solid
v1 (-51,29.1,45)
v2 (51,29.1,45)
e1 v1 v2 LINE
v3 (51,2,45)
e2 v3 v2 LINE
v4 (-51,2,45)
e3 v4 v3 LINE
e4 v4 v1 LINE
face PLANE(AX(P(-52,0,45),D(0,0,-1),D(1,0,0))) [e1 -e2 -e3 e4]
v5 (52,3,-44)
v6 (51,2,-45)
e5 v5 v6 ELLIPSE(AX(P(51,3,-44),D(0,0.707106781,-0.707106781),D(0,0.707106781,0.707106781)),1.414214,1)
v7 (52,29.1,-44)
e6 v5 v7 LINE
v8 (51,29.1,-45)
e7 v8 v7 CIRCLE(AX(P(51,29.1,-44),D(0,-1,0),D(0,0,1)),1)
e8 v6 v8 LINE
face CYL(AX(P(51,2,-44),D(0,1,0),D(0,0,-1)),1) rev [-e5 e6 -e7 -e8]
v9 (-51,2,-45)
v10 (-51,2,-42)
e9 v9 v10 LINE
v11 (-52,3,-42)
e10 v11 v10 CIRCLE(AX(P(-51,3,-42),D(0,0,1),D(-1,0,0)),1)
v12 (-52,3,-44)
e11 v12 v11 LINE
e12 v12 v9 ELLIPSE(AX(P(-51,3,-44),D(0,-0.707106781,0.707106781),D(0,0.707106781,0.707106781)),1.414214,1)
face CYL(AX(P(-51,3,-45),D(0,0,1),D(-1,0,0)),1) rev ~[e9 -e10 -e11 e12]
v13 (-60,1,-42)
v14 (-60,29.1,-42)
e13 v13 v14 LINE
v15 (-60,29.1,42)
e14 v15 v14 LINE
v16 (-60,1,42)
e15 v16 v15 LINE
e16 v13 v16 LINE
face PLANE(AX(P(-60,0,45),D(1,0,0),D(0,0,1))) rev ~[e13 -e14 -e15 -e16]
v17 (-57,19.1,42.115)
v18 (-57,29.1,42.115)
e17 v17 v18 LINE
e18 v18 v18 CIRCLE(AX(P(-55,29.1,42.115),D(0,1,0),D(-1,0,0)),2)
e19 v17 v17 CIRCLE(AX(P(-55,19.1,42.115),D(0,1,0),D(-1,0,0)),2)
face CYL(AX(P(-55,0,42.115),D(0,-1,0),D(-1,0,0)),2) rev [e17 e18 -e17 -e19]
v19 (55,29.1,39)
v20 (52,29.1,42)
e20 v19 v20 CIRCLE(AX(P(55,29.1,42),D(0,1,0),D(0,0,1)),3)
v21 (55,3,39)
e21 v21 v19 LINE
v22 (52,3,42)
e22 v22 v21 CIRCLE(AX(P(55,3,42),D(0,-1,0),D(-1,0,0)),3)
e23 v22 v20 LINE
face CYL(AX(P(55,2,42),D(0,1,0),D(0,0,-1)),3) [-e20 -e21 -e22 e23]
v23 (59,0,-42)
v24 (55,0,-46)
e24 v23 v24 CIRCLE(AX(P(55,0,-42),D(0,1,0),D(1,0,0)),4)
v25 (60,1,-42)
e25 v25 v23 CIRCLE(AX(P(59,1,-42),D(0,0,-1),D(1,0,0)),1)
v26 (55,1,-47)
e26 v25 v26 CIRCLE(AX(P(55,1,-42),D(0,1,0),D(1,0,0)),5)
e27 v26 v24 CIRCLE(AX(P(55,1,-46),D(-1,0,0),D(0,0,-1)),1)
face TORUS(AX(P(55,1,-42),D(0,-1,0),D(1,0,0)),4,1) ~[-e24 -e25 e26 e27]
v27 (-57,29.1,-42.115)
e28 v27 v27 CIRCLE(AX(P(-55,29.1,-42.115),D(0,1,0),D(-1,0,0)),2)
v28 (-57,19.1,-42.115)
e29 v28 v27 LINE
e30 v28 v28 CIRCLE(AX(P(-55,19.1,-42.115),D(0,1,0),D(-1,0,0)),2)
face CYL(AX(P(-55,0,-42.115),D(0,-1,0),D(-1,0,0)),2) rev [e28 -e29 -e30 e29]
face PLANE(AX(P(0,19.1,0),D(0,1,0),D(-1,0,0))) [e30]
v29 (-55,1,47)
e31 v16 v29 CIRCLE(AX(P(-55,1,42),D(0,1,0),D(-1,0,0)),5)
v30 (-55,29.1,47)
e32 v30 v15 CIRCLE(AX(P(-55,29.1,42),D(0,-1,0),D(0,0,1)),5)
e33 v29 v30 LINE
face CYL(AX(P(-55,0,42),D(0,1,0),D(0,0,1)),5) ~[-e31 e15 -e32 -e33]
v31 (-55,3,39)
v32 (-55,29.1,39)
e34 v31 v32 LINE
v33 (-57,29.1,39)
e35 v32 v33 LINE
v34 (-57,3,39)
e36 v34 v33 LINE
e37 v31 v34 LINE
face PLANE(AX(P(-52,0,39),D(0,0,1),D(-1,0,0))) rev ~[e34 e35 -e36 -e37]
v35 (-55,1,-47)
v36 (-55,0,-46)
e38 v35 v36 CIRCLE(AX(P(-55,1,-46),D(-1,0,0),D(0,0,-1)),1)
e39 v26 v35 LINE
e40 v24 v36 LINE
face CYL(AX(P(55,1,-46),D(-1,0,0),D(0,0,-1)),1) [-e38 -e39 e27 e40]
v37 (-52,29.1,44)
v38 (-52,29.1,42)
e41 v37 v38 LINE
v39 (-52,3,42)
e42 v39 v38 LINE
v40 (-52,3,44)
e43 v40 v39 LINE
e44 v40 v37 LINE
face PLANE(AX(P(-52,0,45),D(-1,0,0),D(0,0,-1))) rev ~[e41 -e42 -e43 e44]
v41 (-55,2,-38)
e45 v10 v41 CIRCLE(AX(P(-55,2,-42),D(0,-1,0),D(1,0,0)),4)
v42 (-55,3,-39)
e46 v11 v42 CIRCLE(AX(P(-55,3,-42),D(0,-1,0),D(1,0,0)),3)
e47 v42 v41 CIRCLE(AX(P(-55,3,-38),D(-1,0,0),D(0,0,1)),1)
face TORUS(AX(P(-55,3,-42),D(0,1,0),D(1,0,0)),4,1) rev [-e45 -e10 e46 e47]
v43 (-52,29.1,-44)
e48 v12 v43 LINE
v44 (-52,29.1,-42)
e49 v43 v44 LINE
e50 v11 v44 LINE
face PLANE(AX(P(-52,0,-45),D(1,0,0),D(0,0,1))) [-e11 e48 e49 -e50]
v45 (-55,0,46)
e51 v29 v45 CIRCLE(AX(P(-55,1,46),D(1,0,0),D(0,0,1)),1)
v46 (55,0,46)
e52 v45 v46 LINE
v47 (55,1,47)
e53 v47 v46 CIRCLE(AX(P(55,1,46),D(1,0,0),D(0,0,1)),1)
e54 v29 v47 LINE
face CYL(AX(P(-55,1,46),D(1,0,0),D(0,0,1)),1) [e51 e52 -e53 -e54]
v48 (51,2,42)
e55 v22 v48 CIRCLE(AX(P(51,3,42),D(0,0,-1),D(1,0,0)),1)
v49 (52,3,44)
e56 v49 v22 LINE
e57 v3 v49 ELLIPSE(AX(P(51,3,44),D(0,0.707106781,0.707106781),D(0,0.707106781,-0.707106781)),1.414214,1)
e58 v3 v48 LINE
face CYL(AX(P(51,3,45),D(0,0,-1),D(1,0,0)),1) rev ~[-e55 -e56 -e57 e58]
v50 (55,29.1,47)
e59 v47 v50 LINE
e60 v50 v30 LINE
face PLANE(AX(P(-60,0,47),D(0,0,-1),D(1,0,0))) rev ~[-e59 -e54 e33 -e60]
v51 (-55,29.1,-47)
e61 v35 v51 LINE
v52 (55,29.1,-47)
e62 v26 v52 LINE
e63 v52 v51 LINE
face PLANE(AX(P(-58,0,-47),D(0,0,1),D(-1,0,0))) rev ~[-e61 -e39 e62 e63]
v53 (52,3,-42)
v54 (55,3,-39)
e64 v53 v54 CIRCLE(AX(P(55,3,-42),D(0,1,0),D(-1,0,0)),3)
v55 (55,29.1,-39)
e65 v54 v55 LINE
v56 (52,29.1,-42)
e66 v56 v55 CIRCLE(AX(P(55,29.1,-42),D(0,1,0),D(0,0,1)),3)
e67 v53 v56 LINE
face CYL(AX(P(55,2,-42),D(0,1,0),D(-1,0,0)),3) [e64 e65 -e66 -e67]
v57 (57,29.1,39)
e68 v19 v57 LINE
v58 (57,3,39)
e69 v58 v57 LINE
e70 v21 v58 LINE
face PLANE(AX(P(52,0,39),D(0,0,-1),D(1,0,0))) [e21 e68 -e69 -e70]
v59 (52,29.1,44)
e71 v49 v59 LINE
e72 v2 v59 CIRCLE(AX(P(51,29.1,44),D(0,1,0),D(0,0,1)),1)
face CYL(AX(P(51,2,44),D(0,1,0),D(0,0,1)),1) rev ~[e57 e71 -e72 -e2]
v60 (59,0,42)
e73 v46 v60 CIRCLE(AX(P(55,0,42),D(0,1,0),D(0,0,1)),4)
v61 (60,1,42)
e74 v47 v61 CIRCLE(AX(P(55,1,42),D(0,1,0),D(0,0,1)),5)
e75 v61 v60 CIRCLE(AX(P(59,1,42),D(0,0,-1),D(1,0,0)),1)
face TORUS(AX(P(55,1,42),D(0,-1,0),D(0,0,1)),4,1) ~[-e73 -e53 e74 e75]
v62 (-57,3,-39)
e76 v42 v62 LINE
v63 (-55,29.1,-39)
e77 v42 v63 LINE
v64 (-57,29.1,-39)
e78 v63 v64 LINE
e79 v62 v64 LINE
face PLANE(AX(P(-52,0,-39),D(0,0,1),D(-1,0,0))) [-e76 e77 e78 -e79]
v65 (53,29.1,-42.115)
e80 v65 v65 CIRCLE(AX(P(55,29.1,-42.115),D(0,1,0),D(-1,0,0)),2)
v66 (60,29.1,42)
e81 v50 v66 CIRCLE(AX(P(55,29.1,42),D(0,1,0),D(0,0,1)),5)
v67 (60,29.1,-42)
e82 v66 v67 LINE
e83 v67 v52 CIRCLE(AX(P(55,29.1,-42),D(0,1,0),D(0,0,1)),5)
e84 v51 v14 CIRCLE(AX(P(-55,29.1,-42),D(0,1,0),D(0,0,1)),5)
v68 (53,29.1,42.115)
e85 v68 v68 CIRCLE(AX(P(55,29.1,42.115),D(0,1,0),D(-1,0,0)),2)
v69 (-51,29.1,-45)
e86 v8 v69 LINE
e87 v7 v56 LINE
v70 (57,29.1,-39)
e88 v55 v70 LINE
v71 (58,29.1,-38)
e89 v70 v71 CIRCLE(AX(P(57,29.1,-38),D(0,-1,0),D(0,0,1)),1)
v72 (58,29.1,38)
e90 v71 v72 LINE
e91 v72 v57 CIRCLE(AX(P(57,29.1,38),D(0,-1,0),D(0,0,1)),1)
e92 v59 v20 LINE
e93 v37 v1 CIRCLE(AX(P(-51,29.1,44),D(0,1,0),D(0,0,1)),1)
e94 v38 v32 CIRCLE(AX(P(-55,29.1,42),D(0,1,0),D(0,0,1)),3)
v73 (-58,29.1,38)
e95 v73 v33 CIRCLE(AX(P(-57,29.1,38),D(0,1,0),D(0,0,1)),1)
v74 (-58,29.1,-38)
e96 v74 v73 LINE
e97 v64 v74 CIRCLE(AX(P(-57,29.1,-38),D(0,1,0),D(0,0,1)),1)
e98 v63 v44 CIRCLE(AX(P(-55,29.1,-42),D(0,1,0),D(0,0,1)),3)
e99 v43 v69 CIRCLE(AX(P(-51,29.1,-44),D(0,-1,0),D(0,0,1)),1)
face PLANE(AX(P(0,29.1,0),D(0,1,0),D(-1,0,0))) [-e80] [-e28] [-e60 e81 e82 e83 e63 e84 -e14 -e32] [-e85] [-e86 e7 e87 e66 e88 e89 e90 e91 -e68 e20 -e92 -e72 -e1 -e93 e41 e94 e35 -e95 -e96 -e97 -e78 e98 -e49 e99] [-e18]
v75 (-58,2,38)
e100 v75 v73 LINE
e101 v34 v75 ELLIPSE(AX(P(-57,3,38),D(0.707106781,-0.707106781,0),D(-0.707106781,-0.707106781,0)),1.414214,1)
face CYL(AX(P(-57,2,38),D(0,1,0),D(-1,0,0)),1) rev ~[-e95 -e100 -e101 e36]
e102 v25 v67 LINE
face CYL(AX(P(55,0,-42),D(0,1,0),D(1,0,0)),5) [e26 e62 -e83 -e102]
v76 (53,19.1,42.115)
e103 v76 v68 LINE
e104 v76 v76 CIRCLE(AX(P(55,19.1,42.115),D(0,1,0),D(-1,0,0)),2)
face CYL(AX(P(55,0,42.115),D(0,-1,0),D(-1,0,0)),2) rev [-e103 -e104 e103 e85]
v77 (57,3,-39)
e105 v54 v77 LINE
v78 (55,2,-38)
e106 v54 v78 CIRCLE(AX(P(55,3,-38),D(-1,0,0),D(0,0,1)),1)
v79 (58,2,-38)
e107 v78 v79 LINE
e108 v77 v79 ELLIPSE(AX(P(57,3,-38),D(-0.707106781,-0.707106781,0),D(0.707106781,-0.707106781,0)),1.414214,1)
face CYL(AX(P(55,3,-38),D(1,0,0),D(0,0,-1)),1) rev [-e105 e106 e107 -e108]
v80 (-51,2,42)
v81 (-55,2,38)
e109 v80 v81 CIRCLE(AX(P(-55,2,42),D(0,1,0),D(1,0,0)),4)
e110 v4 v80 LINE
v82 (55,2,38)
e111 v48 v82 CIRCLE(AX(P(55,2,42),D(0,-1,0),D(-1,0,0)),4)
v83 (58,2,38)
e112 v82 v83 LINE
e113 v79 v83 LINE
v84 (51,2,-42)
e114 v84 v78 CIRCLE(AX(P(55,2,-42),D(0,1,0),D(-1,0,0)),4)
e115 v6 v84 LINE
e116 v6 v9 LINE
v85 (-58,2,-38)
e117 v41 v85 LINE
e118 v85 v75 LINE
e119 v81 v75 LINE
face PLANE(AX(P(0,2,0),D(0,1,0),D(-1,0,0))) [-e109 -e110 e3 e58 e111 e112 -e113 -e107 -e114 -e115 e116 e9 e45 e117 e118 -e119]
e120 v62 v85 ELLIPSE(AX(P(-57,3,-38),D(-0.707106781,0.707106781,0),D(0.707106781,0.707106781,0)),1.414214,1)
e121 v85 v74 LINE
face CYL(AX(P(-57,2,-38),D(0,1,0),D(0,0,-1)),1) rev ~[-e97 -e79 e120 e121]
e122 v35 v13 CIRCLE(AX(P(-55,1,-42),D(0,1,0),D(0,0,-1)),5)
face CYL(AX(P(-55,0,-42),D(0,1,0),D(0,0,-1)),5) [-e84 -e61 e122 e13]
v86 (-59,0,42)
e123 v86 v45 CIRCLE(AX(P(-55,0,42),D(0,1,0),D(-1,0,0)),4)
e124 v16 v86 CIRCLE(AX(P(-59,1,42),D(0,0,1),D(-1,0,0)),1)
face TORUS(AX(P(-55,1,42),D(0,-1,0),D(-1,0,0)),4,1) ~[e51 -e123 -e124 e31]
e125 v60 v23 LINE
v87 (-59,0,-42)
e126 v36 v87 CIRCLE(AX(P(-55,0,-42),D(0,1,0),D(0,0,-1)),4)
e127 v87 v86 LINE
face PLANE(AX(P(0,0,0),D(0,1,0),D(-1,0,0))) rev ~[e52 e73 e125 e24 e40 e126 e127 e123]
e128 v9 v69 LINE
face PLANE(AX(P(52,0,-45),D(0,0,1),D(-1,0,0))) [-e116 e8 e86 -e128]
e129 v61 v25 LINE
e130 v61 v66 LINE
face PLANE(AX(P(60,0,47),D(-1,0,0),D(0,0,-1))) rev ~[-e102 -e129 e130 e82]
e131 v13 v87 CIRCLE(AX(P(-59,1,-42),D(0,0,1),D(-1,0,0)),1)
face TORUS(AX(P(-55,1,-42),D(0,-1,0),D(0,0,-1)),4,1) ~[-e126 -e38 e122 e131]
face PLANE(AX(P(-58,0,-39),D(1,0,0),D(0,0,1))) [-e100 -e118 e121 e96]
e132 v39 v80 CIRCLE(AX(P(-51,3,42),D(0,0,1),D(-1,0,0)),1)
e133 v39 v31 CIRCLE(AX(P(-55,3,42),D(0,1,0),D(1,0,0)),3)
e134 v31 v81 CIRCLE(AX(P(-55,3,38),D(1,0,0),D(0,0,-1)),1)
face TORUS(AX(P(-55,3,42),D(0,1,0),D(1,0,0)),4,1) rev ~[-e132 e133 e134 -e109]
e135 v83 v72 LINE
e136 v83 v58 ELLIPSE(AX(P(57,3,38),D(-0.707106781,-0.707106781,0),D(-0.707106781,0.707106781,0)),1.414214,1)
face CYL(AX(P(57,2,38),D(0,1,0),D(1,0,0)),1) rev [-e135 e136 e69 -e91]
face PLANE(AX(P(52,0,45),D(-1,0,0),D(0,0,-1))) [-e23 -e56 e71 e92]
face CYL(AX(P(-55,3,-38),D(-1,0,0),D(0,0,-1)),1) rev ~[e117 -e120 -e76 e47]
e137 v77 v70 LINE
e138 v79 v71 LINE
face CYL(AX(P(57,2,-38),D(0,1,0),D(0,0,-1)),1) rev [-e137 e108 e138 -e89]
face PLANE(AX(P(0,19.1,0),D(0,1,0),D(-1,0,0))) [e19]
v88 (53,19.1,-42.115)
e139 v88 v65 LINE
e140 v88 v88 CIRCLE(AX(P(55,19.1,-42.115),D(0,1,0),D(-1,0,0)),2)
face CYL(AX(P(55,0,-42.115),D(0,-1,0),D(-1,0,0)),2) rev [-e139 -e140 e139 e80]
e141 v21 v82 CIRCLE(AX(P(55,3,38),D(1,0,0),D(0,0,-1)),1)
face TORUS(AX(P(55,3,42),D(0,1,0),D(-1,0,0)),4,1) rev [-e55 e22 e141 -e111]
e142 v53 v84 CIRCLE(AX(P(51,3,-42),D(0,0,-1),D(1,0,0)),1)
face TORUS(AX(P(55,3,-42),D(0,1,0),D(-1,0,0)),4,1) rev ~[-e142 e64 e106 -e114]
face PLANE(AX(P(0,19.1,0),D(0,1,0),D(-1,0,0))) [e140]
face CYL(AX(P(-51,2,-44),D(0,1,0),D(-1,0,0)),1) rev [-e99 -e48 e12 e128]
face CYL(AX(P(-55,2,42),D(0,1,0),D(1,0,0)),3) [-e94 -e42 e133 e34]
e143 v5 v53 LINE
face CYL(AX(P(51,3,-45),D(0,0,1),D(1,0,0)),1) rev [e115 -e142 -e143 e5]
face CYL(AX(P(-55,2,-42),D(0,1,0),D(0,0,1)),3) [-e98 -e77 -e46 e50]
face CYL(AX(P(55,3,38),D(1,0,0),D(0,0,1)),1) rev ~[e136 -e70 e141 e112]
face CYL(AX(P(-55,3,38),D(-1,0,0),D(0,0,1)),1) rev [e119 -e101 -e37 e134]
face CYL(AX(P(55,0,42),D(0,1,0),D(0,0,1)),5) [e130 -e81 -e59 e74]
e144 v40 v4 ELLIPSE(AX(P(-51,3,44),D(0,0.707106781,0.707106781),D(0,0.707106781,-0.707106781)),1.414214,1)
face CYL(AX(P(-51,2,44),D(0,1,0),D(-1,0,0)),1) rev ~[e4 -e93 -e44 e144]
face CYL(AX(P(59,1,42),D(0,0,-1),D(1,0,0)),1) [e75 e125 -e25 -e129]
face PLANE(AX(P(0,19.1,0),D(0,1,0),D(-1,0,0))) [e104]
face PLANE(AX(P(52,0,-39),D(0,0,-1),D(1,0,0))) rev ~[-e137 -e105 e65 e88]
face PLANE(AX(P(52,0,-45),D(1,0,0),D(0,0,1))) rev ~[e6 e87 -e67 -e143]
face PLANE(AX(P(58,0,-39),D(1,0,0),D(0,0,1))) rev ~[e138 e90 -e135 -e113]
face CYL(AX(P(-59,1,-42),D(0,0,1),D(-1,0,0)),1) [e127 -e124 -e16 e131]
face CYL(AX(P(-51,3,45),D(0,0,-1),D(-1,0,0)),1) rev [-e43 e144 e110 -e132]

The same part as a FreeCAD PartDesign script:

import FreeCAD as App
import Part
import Sketcher
Q = App.Units.Quantity


def edges_at(feature, points):
    """Names of the edges that pass closest to the given points."""
    edges = feature.Shape.Edges
    near = lambda p: min(range(len(edges)), key=lambda i: edges[i].distToShape(Part.Vertex(*p))[0])
    return sorted({f"Edge{near(p) + 1}" for p in points})


def add_polygon(sketch, points):
    """Adds a closed chain of lines whose ends are joined by coincident constraints."""
    first, n = sketch.GeometryCount, len(points)
    for a, b in zip(points, points[1:] + points[:1]):
        sketch.addGeometry(Part.LineSegment(App.Vector(*a, 0), App.Vector(*b, 0)), False)
    for i in range(n):
        sketch.addConstraint(Sketcher.Constraint("Coincident", first + i, 2, first + (i + 1) % n, 1))

doc = App.newDocument("Part")
params = doc.addObject("Spreadsheet::Sheet", "Params")
for row, (alias, value) in enumerate([
    ("sketch1_width", "104 mm"),
    ("sketch1_width2", "6 mm"),
    ("sketch1_height", "78 mm"),
    ("pad1_length", "2 mm"),
    ("sketch2_diameter", "4 mm"),
    ("sketch2_width", "120 mm"),
    ("sketch2_height", "94 mm"),
    ("pad2_length", "29.1 mm"),
    ("fillet_radius", "5 mm"),
    ("fillet2_radius", "3 mm"),
    ("fillet3_radius", "1 mm"),
    ("sketch3_diameter", "4 mm"),
    ("pad3_length", "19.1 mm"),
    ("fillet4_radius", "1 mm"),
], start=1):
    params.set(f"A{row}", alias)
    params.set(f"B{row}", "=" + value)
    params.setAlias(f"B{row}", alias)

body = doc.addObject("PartDesign::Body", "Body")

# Sketch on XZ plane
sketch1 = body.newObject("Sketcher::SketchObject", "Sketch")
sketch1.AttachmentSupport = (doc.getObject("XZ_Plane"), [""])
sketch1.MapMode = "FlatFace"
add_polygon(sketch1, [(-52, 39), (-52, 45), (52, 45), (52, 39), (58, 39), (58, -39), (52, -39), (52, -45), (-52, -45), (-52, -39), (-58, -39), (-58, 39)])  # lines 0-11
sketch1.addConstraint(Sketcher.Constraint("Vertical", 0))
sketch1.addConstraint(Sketcher.Constraint("Horizontal", 1))
sketch1.addConstraint(Sketcher.Constraint("Vertical", 2))
sketch1.addConstraint(Sketcher.Constraint("Horizontal", 3))
sketch1.addConstraint(Sketcher.Constraint("Vertical", 4))
sketch1.addConstraint(Sketcher.Constraint("Horizontal", 5))
sketch1.addConstraint(Sketcher.Constraint("Vertical", 6))
sketch1.addConstraint(Sketcher.Constraint("Horizontal", 7))
sketch1.addConstraint(Sketcher.Constraint("Vertical", 8))
sketch1.addConstraint(Sketcher.Constraint("Horizontal", 9))
sketch1.addConstraint(Sketcher.Constraint("Vertical", 10))
sketch1.addConstraint(Sketcher.Constraint("Horizontal", 11))
sketch1.addConstraint(Sketcher.Constraint("Symmetric", 0, 2, 6, 2, -1, 1))
sketch1.addConstraint(Sketcher.Constraint("Symmetric", 2, 2, 8, 2, -1, 1))
sketch1.addConstraint(Sketcher.Constraint("Symmetric", 4, 2, 10, 2, -1, 1))
sketch1.addConstraint(Sketcher.Constraint("Symmetric", 5, 2, 8, 2, -2))
sketch1.addConstraint(Sketcher.Constraint("Equal", 11, 0))
sketch1.addConstraint(Sketcher.Constraint("DistanceX", 1, 1, 1, 2, Q("104 mm")))
sketch1.addConstraint(Sketcher.Constraint("DistanceX", 3, 1, 3, 2, Q("6 mm")))
sketch1.addConstraint(Sketcher.Constraint("DistanceY", 4, 2, 4, 1, Q("78 mm")))
sketch1.setExpression("Constraints[29]", "Params.sketch1_width")
sketch1.setExpression("Constraints[30]", "Params.sketch1_width2")
sketch1.setExpression("Constraints[31]", "Params.sketch1_height")
pad1 = body.newObject("PartDesign::Pad", "Pad")
pad1.Profile = sketch1
pad1.setExpression("Length", "Params.pad1_length")
pad1.Reversed = True

# Sketch on XZ plane
sketch2 = body.newObject("Sketcher::SketchObject", "Sketch001")
sketch2.AttachmentSupport = (doc.getObject("XZ_Plane"), [""])
sketch2.MapMode = "FlatFace"
add_polygon(sketch2, [(-60, 47), (60, 47), (60, -47), (-60, -47)])  # lines 0-3
add_polygon(sketch2, [(-58, 39), (-58, -39), (-52, -39), (-52, -45), (52, -45), (52, -39), (58, -39), (58, 39), (52, 39), (52, 45), (-52, 45), (-52, 39)])  # lines 4-15
sketch2.addGeometry(Part.Circle(App.Vector(-55, 42.115, 0), App.Vector(0, 0, 1), 2), False)  # 16
sketch2.addGeometry(Part.Circle(App.Vector(-55, -42.115, 0), App.Vector(0, 0, 1), 2), False)  # 17
sketch2.addGeometry(Part.Circle(App.Vector(55, 42.115, 0), App.Vector(0, 0, 1), 2), False)  # 18
sketch2.addGeometry(Part.Circle(App.Vector(55, -42.115, 0), App.Vector(0, 0, 1), 2), False)  # 19
sketch2.addConstraint(Sketcher.Constraint("Horizontal", 0))
sketch2.addConstraint(Sketcher.Constraint("Vertical", 1))
sketch2.addConstraint(Sketcher.Constraint("Horizontal", 2))
sketch2.addConstraint(Sketcher.Constraint("Vertical", 3))
sketch2.addConstraint(Sketcher.Constraint("Vertical", 4))
sketch2.addConstraint(Sketcher.Constraint("Horizontal", 5))
sketch2.addConstraint(Sketcher.Constraint("Vertical", 6))
sketch2.addConstraint(Sketcher.Constraint("Horizontal", 7))
sketch2.addConstraint(Sketcher.Constraint("Vertical", 8))
sketch2.addConstraint(Sketcher.Constraint("Horizontal", 9))
sketch2.addConstraint(Sketcher.Constraint("Vertical", 10))
sketch2.addConstraint(Sketcher.Constraint("Horizontal", 11))
sketch2.addConstraint(Sketcher.Constraint("Vertical", 12))
sketch2.addConstraint(Sketcher.Constraint("Horizontal", 13))
sketch2.addConstraint(Sketcher.Constraint("Vertical", 14))
sketch2.addConstraint(Sketcher.Constraint("Horizontal", 15))
sketch2.addConstraint(Sketcher.Constraint("Equal", 16, 17))
sketch2.addConstraint(Sketcher.Constraint("Equal", 17, 18))
sketch2.addConstraint(Sketcher.Constraint("Equal", 18, 19))
sketch2.addConstraint(Sketcher.Constraint("Symmetric", 17, 3, 18, 3, -1, 1))
sketch2.addConstraint(Sketcher.Constraint("Symmetric", 16, 3, 19, 3, -1, 1))
sketch2.addConstraint(Sketcher.Constraint("Symmetric", 0, 2, 2, 2, -1, 1))
sketch2.addConstraint(Sketcher.Constraint("Symmetric", 4, 2, 10, 2, -1, 1))
sketch2.addConstraint(Sketcher.Constraint("Symmetric", 6, 2, 12, 2, -1, 1))
sketch2.addConstraint(Sketcher.Constraint("Symmetric", 8, 2, 14, 2, -1, 1))
sketch2.addConstraint(Sketcher.Constraint("Symmetric", 16, 3, 18, 3, -2))
sketch2.addConstraint(Sketcher.Constraint("Symmetric", 5, 2, 8, 2, -2))
sketch2.addConstraint(Sketcher.Constraint("Equal", 15, 6))
sketch2.addConstraint(Sketcher.Constraint("Diameter", 16, Q("4 mm")))
sketch2.addConstraint(Sketcher.Constraint("DistanceX", 0, 1, 0, 2, Q("120 mm")))
sketch2.addConstraint(Sketcher.Constraint("DistanceY", 1, 2, 1, 1, Q("94 mm")))
sketch2.addConstraint(Sketcher.Constraint("DistanceX", 16, 3, -1, 1, Q("55 mm")))
sketch2.addConstraint(Sketcher.Constraint("DistanceX", 2, 2, 4, 2, Q("2 mm")))
sketch2.addConstraint(Sketcher.Constraint("DistanceY", 2, 2, 4, 2, Q("8 mm")))
sketch2.addConstraint(Sketcher.Constraint("DistanceX", 2, 2, 5, 2, Q("8 mm")))
sketch2.addConstraint(Sketcher.Constraint("DistanceY", -1, 1, 16, 3, Q("42.115 mm")))
sketch2.setExpression("Constraints[44]", "Params.sketch2_diameter")
sketch2.setExpression("Constraints[45]", "Params.sketch2_width")
sketch2.setExpression("Constraints[46]", "Params.sketch2_height")
pad2 = body.newObject("PartDesign::Pad", "Pad001")
pad2.Profile = sketch2
pad2.setExpression("Length", "Params.pad2_length")
pad2.Reversed = True
doc.recompute()

fillet = body.newObject("PartDesign::Fillet", "Fillet")
fillet.Base = (pad2, edges_at(pad2, [
    (-60, 14.55, 47),
    (-60, 14.55, -47),
    (60, 14.55, -47),
    (60, 14.55, 47),
]))
fillet.setExpression("Radius", "Params.fillet_radius")
doc.recompute()

fillet2 = body.newObject("PartDesign::Fillet", "Fillet001")
fillet2.Base = (fillet, edges_at(fillet, [
    (-52, 15.55, -39),
    (-52, 15.55, 39),
    (52, 15.55, -39),
    (52, 15.55, 39),
]))
fillet2.setExpression("Radius", "Params.fillet2_radius")
doc.recompute()

fillet3 = body.newObject("PartDesign::Fillet", "Fillet002")
fillet3.Base = (fillet2, edges_at(fillet2, [
    (-58, 15.55, -39),
    (-52, 15.55, -45),
    (-52, 2, -43.5),
    (-56.5, 2, -39),
    (56.5, 2, -39),
    (52, 2, -43.5),
    (52, 15.55, -45),
    (58, 15.55, -39),
    (58, 15.55, 39),
    (52, 15.55, 45),
    (52, 2, 43.5),
    (56.5, 2, 39),
    (-56.5, 2, 39),
    (-52, 2, 43.5),
    (-58, 15.55, 39),
    (-52, 15.55, 45),
]))
fillet3.setExpression("Radius", "Params.fillet3_radius")

# Sketch on XZ plane
sketch3 = body.newObject("Sketcher::SketchObject", "Sketch002")
sketch3.AttachmentSupport = (doc.getObject("XZ_Plane"), [""])
sketch3.MapMode = "FlatFace"
sketch3.addGeometry(Part.Circle(App.Vector(55, -42.115, 0), App.Vector(0, 0, 1), 2), False)
sketch3.addGeometry(Part.Circle(App.Vector(-55, -42.115, 0), App.Vector(0, 0, 1), 2), False)
sketch3.addGeometry(Part.Circle(App.Vector(55, 42.115, 0), App.Vector(0, 0, 1), 2), False)
sketch3.addGeometry(Part.Circle(App.Vector(-55, 42.115, 0), App.Vector(0, 0, 1), 2), False)
sketch3.addConstraint(Sketcher.Constraint("Equal", 0, 1))
sketch3.addConstraint(Sketcher.Constraint("Equal", 1, 2))
sketch3.addConstraint(Sketcher.Constraint("Equal", 2, 3))
sketch3.addConstraint(Sketcher.Constraint("Symmetric", 1, 3, 2, 3, -1, 1))
sketch3.addConstraint(Sketcher.Constraint("Symmetric", 0, 3, 3, 3, -1, 1))
sketch3.addConstraint(Sketcher.Constraint("Symmetric", 0, 3, 1, 3, -2))
sketch3.addConstraint(Sketcher.Constraint("Diameter", 0, Q("4 mm")))
sketch3.addConstraint(Sketcher.Constraint("DistanceX", -1, 1, 0, 3, Q("55 mm")))
sketch3.addConstraint(Sketcher.Constraint("DistanceY", 0, 3, -1, 1, Q("42.115 mm")))
sketch3.setExpression("Constraints[6]", "Params.sketch3_diameter")
pad3 = body.newObject("PartDesign::Pad", "Pad002")
pad3.Profile = sketch3
pad3.setExpression("Length", "Params.pad3_length")
pad3.Reversed = True
doc.recompute()

fillet4 = body.newObject("PartDesign::Fillet", "Fillet003")
fillet4.Base = (pad3, edges_at(pad3, [
    (0, 0, 47),
    (60, 0, 0),
    (0, 0, -47),
    (-60, 0, 0),
]))
fillet4.setExpression("Radius", "Params.fillet4_radius")

doc.recompute()
